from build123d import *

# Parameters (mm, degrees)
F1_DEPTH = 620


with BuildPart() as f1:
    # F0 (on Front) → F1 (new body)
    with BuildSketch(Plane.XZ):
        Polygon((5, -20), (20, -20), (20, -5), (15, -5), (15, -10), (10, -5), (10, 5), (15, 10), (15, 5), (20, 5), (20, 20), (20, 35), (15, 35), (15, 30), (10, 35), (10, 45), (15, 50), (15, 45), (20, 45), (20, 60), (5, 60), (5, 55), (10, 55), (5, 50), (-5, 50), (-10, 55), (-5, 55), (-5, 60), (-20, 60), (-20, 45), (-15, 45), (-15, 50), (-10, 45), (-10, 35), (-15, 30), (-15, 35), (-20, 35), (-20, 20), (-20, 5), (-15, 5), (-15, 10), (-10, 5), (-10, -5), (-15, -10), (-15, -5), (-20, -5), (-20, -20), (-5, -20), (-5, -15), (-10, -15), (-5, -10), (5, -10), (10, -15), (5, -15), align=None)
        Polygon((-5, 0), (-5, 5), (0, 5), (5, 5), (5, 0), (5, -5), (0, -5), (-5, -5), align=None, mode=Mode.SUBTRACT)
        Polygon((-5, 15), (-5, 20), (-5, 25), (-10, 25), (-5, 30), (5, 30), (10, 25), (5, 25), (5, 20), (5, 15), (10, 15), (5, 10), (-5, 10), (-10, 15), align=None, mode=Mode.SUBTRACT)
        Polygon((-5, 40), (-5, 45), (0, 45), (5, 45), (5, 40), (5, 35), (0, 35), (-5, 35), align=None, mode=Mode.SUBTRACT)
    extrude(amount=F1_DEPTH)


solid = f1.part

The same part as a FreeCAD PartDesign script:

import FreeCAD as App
import Part
import Sketcher
Q = App.Units.Quantity

doc = App.newDocument("Part")
body = doc.addObject("PartDesign::Body", "Body")

# Sketch on XZ plane
sketch1 = doc.addObject("Sketcher::SketchObject", "Sketch")
body.addObject(sketch1)
sketch1.AttachmentSupport = (doc.XZ_Plane, [""])
sketch1.MapMode = "FlatFace"
sketch1.addGeometry(Part.LineSegment(App.Vector(5, -20, 0), App.Vector(20, -20, 0)), False)
sketch1.addGeometry(Part.LineSegment(App.Vector(20, -20, 0), App.Vector(20, -5, 0)), False)
sketch1.addGeometry(Part.LineSegment(App.Vector(20, -5, 0), App.Vector(15, -5, 0)), False)
sketch1.addGeometry(Part.LineSegment(App.Vector(15, -5, 0), App.Vector(15, -10, 0)), False)
sketch1.addGeometry(Part.LineSegment(App.Vector(15, -10, 0), App.Vector(10, -5, 0)), False)
sketch1.addGeometry(Part.LineSegment(App.Vector(10, -5, 0), App.Vector(10, 5, 0)), False)
sketch1.addGeometry(Part.LineSegment(App.Vector(10, 5, 0), App.Vector(15, 10, 0)), False)
sketch1.addGeometry(Part.LineSegment(App.Vector(15, 10, 0), App.Vector(15, 5, 0)), False)
sketch1.addGeometry(Part.LineSegment(App.Vector(15, 5, 0), App.Vector(20, 5, 0)), False)
sketch1.addGeometry(Part.LineSegment(App.Vector(20, 5, 0), App.Vector(20, 35, 0)), False)
sketch1.addGeometry(Part.LineSegment(App.Vector(20, 35, 0), App.Vector(15, 35, 0)), False)
sketch1.addGeometry(Part.LineSegment(App.Vector(15, 35, 0), App.Vector(15, 30, 0)), False)
sketch1.addGeometry(Part.LineSegment(App.Vector(15, 30, 0), App.Vector(10, 35, 0)), False)
sketch1.addGeometry(Part.LineSegment(App.Vector(10, 35, 0), App.Vector(10, 45, 0)), False)
sketch1.addGeometry(Part.LineSegment(App.Vector(10, 45, 0), App.Vector(15, 50, 0)), False)
sketch1.addGeometry(Part.LineSegment(App.Vector(15, 50, 0), App.Vector(15, 45, 0)), False)
sketch1.addGeometry(Part.LineSegment(App.Vector(15, 45, 0), App.Vector(20, 45, 0)), False)
sketch1.addGeometry(Part.LineSegment(App.Vector(20, 45, 0), App.Vector(20, 60, 0)), False)
sketch1.addGeometry(Part.LineSegment(App.Vector(20, 60, 0), App.Vector(5, 60, 0)), False)
sketch1.addGeometry(Part.LineSegment(App.Vector(5, 60, 0), App.Vector(5, 55, 0)), False)
sketch1.addGeometry(Part.LineSegment(App.Vector(5, 55, 0), App.Vector(10, 55, 0)), False)
sketch1.addGeometry(Part.LineSegment(App.Vector(10, 55, 0), App.Vector(5, 50, 0)), False)
sketch1.addGeometry(Part.LineSegment(App.Vector(5, 50, 0), App.Vector(-5, 50, 0)), False)
sketch1.addGeometry(Part.LineSegment(App.Vector(-5, 50, 0), App.Vector(-10, 55, 0)), False)
sketch1.addGeometry(Part.LineSegment(App.Vector(-10, 55, 0), App.Vector(-5, 55, 0)), False)
sketch1.addGeometry(Part.LineSegment(App.Vector(-5, 55, 0), App.Vector(-5, 60, 0)), False)
sketch1.addGeometry(Part.LineSegment(App.Vector(-5, 60, 0), App.Vector(-20, 60, 0)), False)
sketch1.addGeometry(Part.LineSegment(App.Vector(-20, 60, 0), App.Vector(-20, 45, 0)), False)
sketch1.addGeometry(Part.LineSegment(App.Vector(-20, 45, 0), App.Vector(-15, 45, 0)), False)
sketch1.addGeometry(Part.LineSegment(App.Vector(-15, 45, 0), App.Vector(-15, 50, 0)), False)
sketch1.addGeometry(Part.LineSegment(App.Vector(-15, 50, 0), App.Vector(-10, 45, 0)), False)
sketch1.addGeometry(Part.LineSegment(App.Vector(-10, 45, 0), App.Vector(-10, 35, 0)), False)
sketch1.addGeometry(Part.LineSegment(App.Vector(-10, 35, 0), App.Vector(-15, 30, 0)), False)
sketch1.addGeometry(Part.LineSegment(App.Vector(-15, 30, 0), App.Vector(-15, 35, 0)), False)
sketch1.addGeometry(Part.LineSegment(App.Vector(-15, 35, 0), App.Vector(-20, 35, 0)), False)
sketch1.addGeometry(Part.LineSegment(App.Vector(-20, 35, 0), App.Vector(-20, 5, 0)), False)
sketch1.addGeometry(Part.LineSegment(App.Vector(-20, 5, 0), App.Vector(-15, 5, 0)), False)
sketch1.addGeometry(Part.LineSegment(App.Vector(-15, 5, 0), App.Vector(-15, 10, 0)), False)
sketch1.addGeometry(Part.LineSegment(App.Vector(-15, 10, 0), App.Vector(-10, 5, 0)), False)
sketch1.addGeometry(Part.LineSegment(App.Vector(-10, 5, 0), App.Vector(-10, -5, 0)), False)
sketch1.addGeometry(Part.LineSegment(App.Vector(-10, -5, 0), App.Vector(-15, -10, 0)), False)
sketch1.addGeometry(Part.LineSegment(App.Vector(-15, -10, 0), App.Vector(-15, -5, 0)), False)
sketch1.addGeometry(Part.LineSegment(App.Vector(-15, -5, 0), App.Vector(-20, -5, 0)), False)
sketch1.addGeometry(Part.LineSegment(App.Vector(-20, -5, 0), App.Vector(-20, -20, 0)), False)
sketch1.addGeometry(Part.LineSegment(App.Vector(-20, -20, 0), App.Vector(-5, -20, 0)), False)
sketch1.addGeometry(Part.LineSegment(App.Vector(-5, -20, 0), App.Vector(-5, -15, 0)), False)
sketch1.addGeometry(Part.LineSegment(App.Vector(-5, -15, 0), App.Vector(-10, -15, 0)), False)
sketch1.addGeometry(Part.LineSegment(App.Vector(-10, -15, 0), App.Vector(-5, -10, 0)), False)
sketch1.addGeometry(Part.LineSegment(App.Vector(-5, -10, 0), App.Vector(5, -10, 0)), False)
sketch1.addGeometry(Part.LineSegment(App.Vector(5, -10, 0), App.Vector(10, -15, 0)), False)
sketch1.addGeometry(Part.LineSegment(App.Vector(10, -15, 0), App.Vector(5, -15, 0)), False)
sketch1.addGeometry(Part.LineSegment(App.Vector(5, -15, 0), App.Vector(5, -20, 0)), False)
sketch1.addGeometry(Part.LineSegment(App.Vector(-5, -5, 0), App.Vector(-5, 5, 0)), False)
sketch1.addGeometry(Part.LineSegment(App.Vector(-5, 5, 0), App.Vector(5, 5, 0)), False)
sketch1.addGeometry(Part.LineSegment(App.Vector(5, 5, 0), App.Vector(5, -5, 0)), False)
sketch1.addGeometry(Part.LineSegment(App.Vector(5, -5, 0), App.Vector(-5, -5, 0)), False)
sketch1.addGeometry(Part.LineSegment(App.Vector(-10, 15, 0), App.Vector(-5, 15, 0)), False)
sketch1.addGeometry(Part.LineSegment(App.Vector(-5, 15, 0), App.Vector(-5, 25, 0)), False)
sketch1.addGeometry(Part.LineSegment(App.Vector(-5, 25, 0), App.Vector(-10, 25, 0)), False)
sketch1.addGeometry(Part.LineSegment(App.Vector(-10, 25, 0), App.Vector(-5, 30, 0)), False)
sketch1.addGeometry(Part.LineSegment(App.Vector(-5, 30, 0), App.Vector(5, 30, 0)), False)
sketch1.addGeometry(Part.LineSegment(App.Vector(5, 30, 0), App.Vector(10, 25, 0)), False)
sketch1.addGeometry(Part.LineSegment(App.Vector(10, 25, 0), App.Vector(5, 25, 0)), False)
sketch1.addGeometry(Part.LineSegment(App.Vector(5, 25, 0), App.Vector(5, 15, 0)), False)
sketch1.addGeometry(Part.LineSegment(App.Vector(5, 15, 0), App.Vector(10, 15, 0)), False)
sketch1.addGeometry(Part.LineSegment(App.Vector(10, 15, 0), App.Vector(5, 10, 0)), False)
sketch1.addGeometry(Part.LineSegment(App.Vector(5, 10, 0), App.Vector(-5, 10, 0)), False)
sketch1.addGeometry(Part.LineSegment(App.Vector(-5, 10, 0), App.Vector(-10, 15, 0)), False)
sketch1.addGeometry(Part.LineSegment(App.Vector(-5, 35, 0), App.Vector(-5, 45, 0)), False)
sketch1.addGeometry(Part.LineSegment(App.Vector(-5, 45, 0), App.Vector(5, 45, 0)), False)
sketch1.addGeometry(Part.LineSegment(App.Vector(5, 45, 0), App.Vector(5, 35, 0)), False)
sketch1.addGeometry(Part.LineSegment(App.Vector(5, 35, 0), App.Vector(-5, 35, 0)), False)
sketch1.addConstraint(Sketcher.Constraint("Coincident", 0, 2, 1, 1))
sketch1.addConstraint(Sketcher.Constraint("Coincident", 1, 2, 2, 1))
sketch1.addConstraint(Sketcher.Constraint("Coincident", 2, 2, 3, 1))
sketch1.addConstraint(Sketcher.Constraint("Coincident", 3, 2, 4, 1))
sketch1.addConstraint(Sketcher.Constraint("Coincident", 4, 2, 5, 1))
sketch1.addConstraint(Sketcher.Constraint("Coincident", 5, 2, 6, 1))
sketch1.addConstraint(Sketcher.Constraint("Coincident", 6, 2, 7, 1))
sketch1.addConstraint(Sketcher.Constraint("Coincident", 7, 2, 8, 1))
sketch1.addConstraint(Sketcher.Constraint("Coincident", 8, 2, 9, 1))
sketch1.addConstraint(Sketcher.Constraint("Coincident", 9, 2, 10, 1))
sketch1.addConstraint(Sketcher.Constraint("Coincident", 10, 2, 11, 1))
sketch1.addConstraint(Sketcher.Constraint("Coincident", 11, 2, 12, 1))
sketch1.addConstraint(Sketcher.Constraint("Coincident", 12, 2, 13, 1))
sketch1.addConstraint(Sketcher.Constraint("Coincident", 13, 2, 14, 1))
sketch1.addConstraint(Sketcher.Constraint("Coincident", 14, 2, 15, 1))
sketch1.addConstraint(Sketcher.Constraint("Coincident", 15, 2, 16, 1))
sketch1.addConstraint(Sketcher.Constraint("Coincident", 16, 2, 17, 1))
sketch1.addConstraint(Sketcher.Constraint("Coincident", 17, 2, 18, 1))
sketch1.addConstraint(Sketcher.Constraint("Coincident", 18, 2, 19, 1))
sketch1.addConstraint(Sketcher.Constraint("Coincident", 19, 2, 20, 1))
sketch1.addConstraint(Sketcher.Constraint("Coincident", 20, 2, 21, 1))
sketch1.addConstraint(Sketcher.Constraint("Coincident", 21, 2, 22, 1))
sketch1.addConstraint(Sketcher.Constraint("Coincident", 22, 2, 23, 1))
sketch1.addConstraint(Sketcher.Constraint("Coincident", 23, 2, 24, 1))
sketch1.addConstraint(Sketcher.Constraint("Coincident", 24, 2, 25, 1))
sketch1.addConstraint(Sketcher.Constraint("Coincident", 25, 2, 26, 1))
sketch1.addConstraint(Sketcher.Constraint("Coincident", 26, 2, 27, 1))
sketch1.addConstraint(Sketcher.Constraint("Coincident", 27, 2, 28, 1))
sketch1.addConstraint(Sketcher.Constraint("Coincident", 28, 2, 29, 1))
sketch1.addConstraint(Sketcher.Constraint("Coincident", 29, 2, 30, 1))
sketch1.addConstraint(Sketcher.Constraint("Coincident", 30, 2, 31, 1))
sketch1.addConstraint(Sketcher.Constraint("Coincident", 31, 2, 32, 1))
sketch1.addConstraint(Sketcher.Constraint("Coincident", 32, 2, 33, 1))
sketch1.addConstraint(Sketcher.Constraint("Coincident", 33, 2, 34, 1))
sketch1.addConstraint(Sketcher.Constraint("Coincident", 34, 2, 35, 1))
sketch1.addConstraint(Sketcher.Constraint("Coincident", 35, 2, 36, 1))
sketch1.addConstraint(Sketcher.Constraint("Coincident", 36, 2, 37, 1))
sketch1.addConstraint(Sketcher.Constraint("Coincident", 37, 2, 38, 1))
sketch1.addConstraint(Sketcher.Constraint("Coincident", 38, 2, 39, 1))
sketch1.addConstraint(Sketcher.Constraint("Coincident", 39, 2, 40, 1))
sketch1.addConstraint(Sketcher.Constraint("Coincident", 40, 2, 41, 1))
sketch1.addConstraint(Sketcher.Constraint("Coincident", 41, 2, 42, 1))
sketch1.addConstraint(Sketcher.Constraint("Coincident", 42, 2, 43, 1))
sketch1.addConstraint(Sketcher.Constraint("Coincident", 43, 2, 44, 1))
sketch1.addConstraint(Sketcher.Constraint("Coincident", 44, 2, 45, 1))
sketch1.addConstraint(Sketcher.Constraint("Coincident", 45, 2, 46, 1))
sketch1.addConstraint(Sketcher.Constraint("Coincident", 46, 2, 47, 1))
sketch1.addConstraint(Sketcher.Constraint("Coincident", 47, 2, 48, 1))
sketch1.addConstraint(Sketcher.Constraint("Coincident", 48, 2, 49, 1))
sketch1.addConstraint(Sketcher.Constraint("Coincident", 49, 2, 50, 1))
sketch1.addConstraint(Sketcher.Constraint("Coincident", 50, 2, 51, 1))
sketch1.addConstraint(Sketcher.Constraint("Coincident", 51, 2, 0, 1))
sketch1.addConstraint(Sketcher.Constraint("Coincident", 52, 2, 53, 1))
sketch1.addConstraint(Sketcher.Constraint("Coincident", 53, 2, 54, 1))
sketch1.addConstraint(Sketcher.Constraint("Coincident", 54, 2, 55, 1))
sketch1.addConstraint(Sketcher.Constraint("Coincident", 55, 2, 52, 1))
sketch1.addConstraint(Sketcher.Constraint("Coincident", 56, 2, 57, 1))
sketch1.addConstraint(Sketcher.Constraint("Coincident", 57, 2, 58, 1))
sketch1.addConstraint(Sketcher.Constraint("Coincident", 58, 2, 59, 1))
sketch1.addConstraint(Sketcher.Constraint("Coincident", 59, 2, 60, 1))
sketch1.addConstraint(Sketcher.Constraint("Coincident", 60, 2, 61, 1))
sketch1.addConstraint(Sketcher.Constraint("Coincident", 61, 2, 62, 1))
sketch1.addConstraint(Sketcher.Constraint("Coincident", 62, 2, 63, 1))
sketch1.addConstraint(Sketcher.Constraint("Coincident", 63, 2, 64, 1))
sketch1.addConstraint(Sketcher.Constraint("Coincident", 64, 2, 65, 1))
sketch1.addConstraint(Sketcher.Constraint("Coincident", 65, 2, 66, 1))
sketch1.addConstraint(Sketcher.Constraint("Coincident", 66, 2, 67, 1))
sketch1.addConstraint(Sketcher.Constraint("Coincident", 67, 2, 56, 1))
sketch1.addConstraint(Sketcher.Constraint("Coincident", 68, 2, 69, 1))
sketch1.addConstraint(Sketcher.Constraint("Coincident", 69, 2, 70, 1))
sketch1.addConstraint(Sketcher.Constraint("Coincident", 70, 2, 71, 1))
sketch1.addConstraint(Sketcher.Constraint("Coincident", 71, 2, 68, 1))
sketch1.addConstraint(Sketcher.Constraint("Horizontal", 0))
sketch1.addConstraint(Sketcher.Constraint("Vertical", 1))
sketch1.addConstraint(Sketcher.Constraint("Horizontal", 2))
sketch1.addConstraint(Sketcher.Constraint("Vertical", 3))
sketch1.addConstraint(Sketcher.Constraint("Vertical", 5))
sketch1.addConstraint(Sketcher.Constraint("Vertical", 7))
sketch1.addConstraint(Sketcher.Constraint("Horizontal", 8))
sketch1.addConstraint(Sketcher.Constraint("Vertical", 9))
sketch1.addConstraint(Sketcher.Constraint("Horizontal", 10))
sketch1.addConstraint(Sketcher.Constraint("Vertical", 11))
sketch1.addConstraint(Sketcher.Constraint("Vertical", 13))
sketch1.addConstraint(Sketcher.Constraint("Vertical", 15))
sketch1.addConstraint(Sketcher.Constraint("Horizontal", 16))
sketch1.addConstraint(Sketcher.Constraint("Vertical", 17))
sketch1.addConstraint(Sketcher.Constraint("Horizontal", 18))
sketch1.addConstraint(Sketcher.Constraint("Vertical", 19))
sketch1.addConstraint(Sketcher.Constraint("Horizontal", 20))
sketch1.addConstraint(Sketcher.Constraint("Horizontal", 22))
sketch1.addConstraint(Sketcher.Constraint("Horizontal", 24))
sketch1.addConstraint(Sketcher.Constraint("Vertical", 25))
sketch1.addConstraint(Sketcher.Constraint("Horizontal", 26))
sketch1.addConstraint(Sketcher.Constraint("Vertical", 27))
sketch1.addConstraint(Sketcher.Constraint("Horizontal", 28))
sketch1.addConstraint(Sketcher.Constraint("Vertical", 29))
sketch1.addConstraint(Sketcher.Constraint("Vertical", 31))
sketch1.addConstraint(Sketcher.Constraint("Vertical", 33))
sketch1.addConstraint(Sketcher.Constraint("Horizontal", 34))
sketch1.addConstraint(Sketcher.Constraint("Vertical", 35))
sketch1.addConstraint(Sketcher.Constraint("Horizontal", 36))
sketch1.addConstraint(Sketcher.Constraint("Vertical", 37))
sketch1.addConstraint(Sketcher.Constraint("Vertical", 39))
sketch1.addConstraint(Sketcher.Constraint("Vertical", 41))
sketch1.addConstraint(Sketcher.Constraint("Horizontal", 42))
sketch1.addConstraint(Sketcher.Constraint("Vertical", 43))
sketch1.addConstraint(Sketcher.Constraint("Horizontal", 44))
sketch1.addConstraint(Sketcher.Constraint("Vertical", 45))
sketch1.addConstraint(Sketcher.Constraint("Horizontal", 46))
sketch1.addConstraint(Sketcher.Constraint("Horizontal", 48))
sketch1.addConstraint(Sketcher.Constraint("Horizontal", 50))
sketch1.addConstraint(Sketcher.Constraint("Vertical", 51))
sketch1.addConstraint(Sketcher.Constraint("Vertical", 52))
sketch1.addConstraint(Sketcher.Constraint("Horizontal", 53))
sketch1.addConstraint(Sketcher.Constraint("Vertical", 54))
sketch1.addConstraint(Sketcher.Constraint("Horizontal", 55))
sketch1.addConstraint(Sketcher.Constraint("Horizontal", 56))
sketch1.addConstraint(Sketcher.Constraint("Vertical", 57))
sketch1.addConstraint(Sketcher.Constraint("Horizontal", 58))
sketch1.addConstraint(Sketcher.Constraint("Horizontal", 60))
sketch1.addConstraint(Sketcher.Constraint("Horizontal", 62))
sketch1.addConstraint(Sketcher.Constraint("Vertical", 63))
sketch1.addConstraint(Sketcher.Constraint("Horizontal", 64))
sketch1.addConstraint(Sketcher.Constraint("Horizontal", 66))
sketch1.addConstraint(Sketcher.Constraint("Vertical", 68))
sketch1.addConstraint(Sketcher.Constraint("Horizontal", 69))
sketch1.addConstraint(Sketcher.Constraint("Vertical", 70))
sketch1.addConstraint(Sketcher.Constraint("Horizontal", 71))
sketch1.addConstraint(Sketcher.Constraint("Symmetric", 1, 2, 35, 2, -1, 1))
sketch1.addConstraint(Sketcher.Constraint("Symmetric", 3, 2, 37, 2, -1, 1))
sketch1.addConstraint(Sketcher.Constraint("Symmetric", 4, 2, 38, 2, -1, 1))
sketch1.addConstraint(Sketcher.Constraint("Symmetric", 6, 2, 40, 2, -1, 1))
sketch1.addConstraint(Sketcher.Constraint("Symmetric", 8, 2, 42, 2, -1, 1))
sketch1.addConstraint(Sketcher.Constraint("Symmetric", 52, 2, 54, 2, -1, 1))
sketch1.addConstraint(Sketcher.Constraint("Symmetric", 50, 2, 56, 2, -1, 1))
sketch1.addConstraint(Sketcher.Constraint("Symmetric", 45, 2, 63, 2, -1, 1))
sketch1.addConstraint(Sketcher.Constraint("Symmetric", 47, 2, 65, 2, -1, 1))
sketch1.addConstraint(Sketcher.Constraint("Symmetric", 20, 2, 23, 2, -2))
sketch1.addConstraint(Sketcher.Constraint("Symmetric", 18, 2, 25, 2, -2))
sketch1.addConstraint(Sketcher.Constraint("Symmetric", 16, 2, 27, 2, -2))
sketch1.addConstraint(Sketcher.Constraint("Symmetric", 14, 2, 29, 2, -2))
sketch1.addConstraint(Sketcher.Constraint("Symmetric", 13, 2, 30, 2, -2))
sketch1.addConstraint(Sketcher.Constraint("Symmetric", 11, 2, 32, 2, -2))
sketch1.addConstraint(Sketcher.Constraint("Symmetric", 9, 2, 34, 2, -2))
sketch1.addConstraint(Sketcher.Constraint("Symmetric", 7, 2, 36, 2, -2))
sketch1.addConstraint(Sketcher.Constraint("Symmetric", 46, 2, 49, 2, -2))
sketch1.addConstraint(Sketcher.Constraint("Symmetric", 44, 2, 51, 2, -2))
sketch1.addConstraint(Sketcher.Constraint("Symmetric", 58, 2, 61, 2, -2))
sketch1.addConstraint(Sketcher.Constraint("Perpendicular", 4, 6))
sketch1.addConstraint(Sketcher.Constraint("Perpendicular", 6, 12))
sketch1.addConstraint(Sketcher.Constraint("Perpendicular", 12, 14))
sketch1.addConstraint(Sketcher.Constraint("Parallel", 14, 21))
sketch1.addConstraint(Sketcher.Constraint("Perpendicular", 21, 23))
sketch1.addConstraint(Sketcher.Constraint("Parallel", 23, 30))
sketch1.addConstraint(Sketcher.Constraint("Perpendicular", 30, 32))
sketch1.addConstraint(Sketcher.Constraint("Perpendicular", 38, 40))
sketch1.addConstraint(Sketcher.Constraint("Parallel", 40, 47))
sketch1.addConstraint(Sketcher.Constraint("Perpendicular", 47, 49))
sketch1.addConstraint(Sketcher.Constraint("Perpendicular", 49, 59))
sketch1.addConstraint(Sketcher.Constraint("Perpendicular", 59, 61))
sketch1.addConstraint(Sketcher.Constraint("Perpendicular", 61, 65))
sketch1.addConstraint(Sketcher.Constraint("Perpendicular", 65, 67))
sketch1.addConstraint(Sketcher.Constraint("Horizontal", 2, 2, 4, 2))
sketch1.addConstraint(Sketcher.Constraint("Horizontal", 5, 2, 7, 2))
sketch1.addConstraint(Sketcher.Constraint("Horizontal", 10, 2, 12, 2))
sketch1.addConstraint(Sketcher.Constraint("Horizontal", 13, 2, 15, 2))
sketch1.addConstraint(Sketcher.Constraint("Horizontal", 14, 2, 21, 2))
sketch1.addConstraint(Sketcher.Constraint("Horizontal", 40, 2, 47, 2))
sketch1.addConstraint(Sketcher.Constraint("Horizontal", 38, 2, 52, 2))
sketch1.addConstraint(Sketcher.Constraint("Horizontal", 32, 2, 59, 2))
sketch1.addConstraint(Sketcher.Constraint("Horizontal", 30, 2, 68, 2))
sketch1.addConstraint(Sketcher.Constraint("Horizontal", 34, 2, 70, 2))
sketch1.addConstraint(Sketcher.Constraint("Vertical", 7, 2, 10, 2))
sketch1.addConstraint(Sketcher.Constraint("Vertical", 5, 2, 12, 2))
sketch1.addConstraint(Sketcher.Constraint("Vertical", 11, 2, 14, 2))
sketch1.addConstraint(Sketcher.Constraint("Vertical", 9, 2, 16, 2))
sketch1.addConstraint(Sketcher.Constraint("Vertical", 13, 2, 20, 2))
sketch1.addConstraint(Sketcher.Constraint("Vertical", 19, 2, 21, 2))
sketch1.addConstraint(Sketcher.Constraint("Vertical", 25, 2, 44, 2))
sketch1.addConstraint(Sketcher.Constraint("Vertical", 39, 2, 46, 2))
sketch1.addConstraint(Sketcher.Constraint("Vertical", 45, 2, 47, 2))
sketch1.addConstraint(Sketcher.Constraint("Vertical", 47, 2, 52, 2))
sketch1.addConstraint(Sketcher.Constraint("Vertical", 46, 2, 58, 2))
sketch1.addConstraint(Sketcher.Constraint("Vertical", 57, 2, 59, 2))
sketch1.addConstraint(Sketcher.Constraint("Vertical", 59, 2, 66, 2))
sketch1.addConstraint(Sketcher.Constraint("Vertical", 66, 2, 68, 2))
sketch1.addConstraint(Sketcher.Constraint("Vertical", 65, 2, 69, 2))
sketch1.addConstraint(Sketcher.Constraint("Equal", 16, 20))
sketch1.addConstraint(Sketcher.Constraint("Equal", 44, 1))
sketch1.addConstraint(Sketcher.Constraint("Equal", 64, 3))
sketch1.addConstraint(Sketcher.Constraint("Equal", 71, 5))
sketch1.addConstraint(Sketcher.Constraint("Equal", 5, 13))
sketch1.addConstraint(Sketcher.Constraint("Equal", 1, 17))
sketch1.addConstraint(Sketcher.Constraint("Equal", 54, 57))
sketch1.addConstraint(Sketcher.Constraint("DistanceX", 0, 1, 0, 2, Q("15 mm")))
sketch1.addConstraint(Sketcher.Constraint("DistanceX", 22, 2, 22, 1, Q("10 mm")))
pad1 = doc.addObject("PartDesign::Pad", "Pad")
body.addObject(pad1)
pad1.Profile = sketch1
pad1.Length = 620

doc.recompute()
